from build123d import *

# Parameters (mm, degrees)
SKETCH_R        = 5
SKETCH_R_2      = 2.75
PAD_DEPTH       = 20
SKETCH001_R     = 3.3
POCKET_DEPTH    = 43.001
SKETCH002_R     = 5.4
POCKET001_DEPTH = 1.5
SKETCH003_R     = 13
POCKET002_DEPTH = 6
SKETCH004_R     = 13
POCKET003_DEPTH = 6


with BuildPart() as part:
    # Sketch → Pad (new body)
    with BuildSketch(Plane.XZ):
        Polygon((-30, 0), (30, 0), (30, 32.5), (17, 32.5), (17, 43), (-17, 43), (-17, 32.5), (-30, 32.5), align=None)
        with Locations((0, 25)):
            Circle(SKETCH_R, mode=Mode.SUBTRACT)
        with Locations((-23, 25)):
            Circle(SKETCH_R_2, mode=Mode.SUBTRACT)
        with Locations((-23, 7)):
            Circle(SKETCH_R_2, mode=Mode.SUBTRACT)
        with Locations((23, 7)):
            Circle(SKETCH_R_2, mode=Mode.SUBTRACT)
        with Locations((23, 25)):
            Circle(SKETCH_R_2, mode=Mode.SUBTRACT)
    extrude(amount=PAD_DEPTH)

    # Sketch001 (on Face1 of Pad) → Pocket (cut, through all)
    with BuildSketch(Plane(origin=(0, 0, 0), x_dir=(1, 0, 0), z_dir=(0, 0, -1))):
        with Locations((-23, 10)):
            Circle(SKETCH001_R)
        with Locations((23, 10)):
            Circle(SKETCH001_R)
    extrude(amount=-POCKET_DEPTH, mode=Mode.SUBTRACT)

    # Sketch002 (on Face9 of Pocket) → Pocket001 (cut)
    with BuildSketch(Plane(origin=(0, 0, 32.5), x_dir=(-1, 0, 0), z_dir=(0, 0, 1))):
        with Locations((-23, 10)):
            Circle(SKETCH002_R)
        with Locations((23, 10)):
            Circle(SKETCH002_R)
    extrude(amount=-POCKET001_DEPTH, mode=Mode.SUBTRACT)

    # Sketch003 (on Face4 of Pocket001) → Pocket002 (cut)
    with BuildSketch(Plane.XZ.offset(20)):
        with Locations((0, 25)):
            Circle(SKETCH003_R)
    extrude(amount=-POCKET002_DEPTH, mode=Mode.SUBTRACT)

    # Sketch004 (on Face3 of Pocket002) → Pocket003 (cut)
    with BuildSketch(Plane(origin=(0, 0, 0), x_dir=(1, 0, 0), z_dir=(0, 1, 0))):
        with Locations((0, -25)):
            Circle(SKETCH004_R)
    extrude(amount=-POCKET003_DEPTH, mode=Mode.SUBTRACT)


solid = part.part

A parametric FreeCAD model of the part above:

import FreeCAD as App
import Part
import Sketcher

doc = App.newDocument("Part")
params = doc.addObject("Spreadsheet::Sheet", "Params")
for row, (alias, value) in enumerate([
    ("sketch1_diameter", "10 mm"),
    ("sketch1_diameter2", "5.5 mm"),
    ("sketch1_width", "60 mm"),
    ("sketch1_width2", "13 mm"),
    ("sketch1_height", "32.5 mm"),
    ("pad1_length", "20 mm"),
    ("sketch2_diameter", "6.6 mm"),
    ("sketch3_diameter", "10.8 mm"),
    ("pocket2_length", "1.5 mm"),
    ("sketch4_diameter", "26 mm"),
    ("pocket3_length", "6 mm"),
    ("sketch5_diameter", "26 mm"),
    ("pocket4_length", "6 mm"),
], start=1):
    params.set(f"A{row}", alias)
    params.set(f"B{row}", "=" + value)
    params.setAlias(f"B{row}", alias)

body = doc.addObject("PartDesign::Body", "Body")

# Sketch on XZ plane
sketch1 = body.newObject("Sketcher::SketchObject", "Sketch")
sketch1.AttachmentSupport = (doc.getObject("XZ_Plane"), [""])
sketch1.MapMode = "FlatFace"
sketch1.addGeometry([
    Part.LineSegment(App.Vector(-30, 0, 0), App.Vector(30, 0, 0)),  # 0
    Part.LineSegment(App.Vector(30, 0, 0), App.Vector(30, 32.5, 0)),  # 1
    Part.LineSegment(App.Vector(30, 32.5, 0), App.Vector(17, 32.5, 0)),  # 2
    Part.LineSegment(App.Vector(17, 32.5, 0), App.Vector(17, 43, 0)),  # 3
    Part.LineSegment(App.Vector(17, 43, 0), App.Vector(-17, 43, 0)),  # 4
    Part.LineSegment(App.Vector(-17, 43, 0), App.Vector(-17, 32.5, 0)),  # 5
    Part.LineSegment(App.Vector(-17, 32.5, 0), App.Vector(-30, 32.5, 0)),  # 6
    Part.LineSegment(App.Vector(-30, 32.5, 0), App.Vector(-30, 0, 0)),  # 7
    Part.Circle(App.Vector(-23, 7, 0), App.Vector(0, 0, 1), 2.8),  # 8
    Part.Circle(App.Vector(23, 7, 0), App.Vector(0, 0, 1), 2.8),  # 9
    Part.Circle(App.Vector(-23, 25, 0), App.Vector(0, 0, 1), 2.8),  # 10
    Part.Circle(App.Vector(0, 25, 0), App.Vector(0, 0, 1), 5),  # 11
    Part.Circle(App.Vector(23, 25, 0), App.Vector(0, 0, 1), 2.8),  # 12
], False)
sketch1.addConstraint([
    Sketcher.Constraint("Coincident", 0, 2, 1, 1),
    Sketcher.Constraint("Coincident", 1, 2, 2, 1),
    Sketcher.Constraint("Coincident", 2, 2, 3, 1),
    Sketcher.Constraint("Coincident", 3, 2, 4, 1),
    Sketcher.Constraint("Coincident", 4, 2, 5, 1),
    Sketcher.Constraint("Coincident", 5, 2, 6, 1),
    Sketcher.Constraint("Coincident", 6, 2, 7, 1),
    Sketcher.Constraint("Coincident", 7, 2, 0, 1),
    Sketcher.Constraint("Horizontal", 0),
    Sketcher.Constraint("Vertical", 1),
    Sketcher.Constraint("Horizontal", 2),
    Sketcher.Constraint("Vertical", 3),
    Sketcher.Constraint("Horizontal", 4),
    Sketcher.Constraint("Vertical", 5),
    Sketcher.Constraint("Horizontal", 6),
    Sketcher.Constraint("Vertical", 7),
    Sketcher.Constraint("Equal", 8, 9),
    Sketcher.Constraint("Equal", 9, 10),
    Sketcher.Constraint("Equal", 10, 12),
    Sketcher.Constraint("Symmetric", 0, 2, 7, 2, -1, 1),
    Sketcher.Constraint("Symmetric", 8, 3, 9, 3, -2),
    Sketcher.Constraint("Symmetric", 10, 3, 12, 3, -2),
    Sketcher.Constraint("Symmetric", 2, 2, 5, 2, -2),
    Sketcher.Constraint("PointOnObject", 11, 3, -2),
    Sketcher.Constraint("Horizontal", 10, 3, 11, 3),
    Sketcher.Constraint("Vertical", 8, 3, 10, 3),
    Sketcher.Constraint("Diameter", 11, 10.0),
    Sketcher.Constraint("Diameter", 8, 5.5),
    Sketcher.Constraint("DistanceX", 0, 1, 0, 2, 60.0),
    Sketcher.Constraint("DistanceX", 2, 2, 2, 1, 13.0),
    Sketcher.Constraint("DistanceY", 1, 1, 1, 2, 32.5),
    Sketcher.Constraint("DistanceY", 3, 1, 3, 2, 10.5),
    Sketcher.Constraint("DistanceX", 8, 3, -1, 1, 23.0),
    Sketcher.Constraint("DistanceY", -1, 1, 8, 3, 7.0),
    Sketcher.Constraint("DistanceY", -1, 1, 10, 3, 25.0),
])
sketch1.setExpression("Constraints[26]", "Params.sketch1_diameter")
sketch1.setExpression("Constraints[27]", "Params.sketch1_diameter2")
sketch1.setExpression("Constraints[28]", "Params.sketch1_width")
sketch1.setExpression("Constraints[29]", "Params.sketch1_width2")
sketch1.setExpression("Constraints[30]", "Params.sketch1_height")
pad1 = body.newObject("PartDesign::Pad", "Pad")
pad1.Profile = sketch1
pad1.setExpression("Length", "Params.pad1_length")

# Sketch on XY plane
sketch2 = body.newObject("Sketcher::SketchObject", "Sketch001")
sketch2.AttachmentSupport = (doc.getObject("XY_Plane"), [""])
sketch2.MapMode = "FlatFace"
sketch2.addGeometry([
    Part.Circle(App.Vector(-23, -10, 0), App.Vector(0, 0, 1), 3.3),
    Part.Circle(App.Vector(23, -10, 0), App.Vector(0, 0, 1), 3.3),
], False)
sketch2.addConstraint([
    Sketcher.Constraint("Equal", 0, 1),
    Sketcher.Constraint("Symmetric", 0, 3, 1, 3, -2),
    Sketcher.Constraint("Diameter", 0, 6.6),
    Sketcher.Constraint("DistanceX", 0, 3, -1, 1, 23.0),
    Sketcher.Constraint("DistanceY", 0, 3, -1, 1, 10.0),
])
sketch2.setExpression("Constraints[2]", "Params.sketch2_diameter")
pocket1 = body.newObject("PartDesign::Pocket", "Pocket")
pocket1.Profile = sketch2
pocket1.Type = "ThroughAll"
pocket1.Reversed = True

# Sketch on XY plane
sketch3 = body.newObject("Sketcher::SketchObject", "Sketch002")
sketch3.AttachmentSupport = (doc.getObject("XY_Plane"), [""])
sketch3.MapMode = "FlatFace"
sketch3.AttachmentOffset = App.Placement(App.Vector(0, 0, 32.5), App.Rotation())
sketch3.addGeometry([
    Part.Circle(App.Vector(23, -10, 0), App.Vector(0, 0, 1), 5),
    Part.Circle(App.Vector(-23, -10, 0), App.Vector(0, 0, 1), 5),
], False)
sketch3.addConstraint([
    Sketcher.Constraint("Equal", 0, 1),
    Sketcher.Constraint("Symmetric", 0, 3, 1, 3, -2),
    Sketcher.Constraint("Diameter", 0, 10.8),
    Sketcher.Constraint("DistanceX", -1, 1, 0, 3, 23.0),
    Sketcher.Constraint("DistanceY", 0, 3, -1, 1, 10.0),
])
sketch3.setExpression("Constraints[2]", "Params.sketch3_diameter")
pocket2 = body.newObject("PartDesign::Pocket", "Pocket001")
pocket2.Profile = sketch3
pocket2.setExpression("Length", "Params.pocket2_length")

# Sketch on XZ plane
sketch4 = body.newObject("Sketcher::SketchObject", "Sketch003")
sketch4.AttachmentSupport = (doc.getObject("XZ_Plane"), [""])
sketch4.MapMode = "FlatFace"
sketch4.AttachmentOffset = App.Placement(App.Vector(0, 0, 20), App.Rotation())
sketch4.addGeometry(Part.Circle(App.Vector(0, 25, 0), App.Vector(0, 0, 1), 13), False)
sketch4.addConstraint([
    Sketcher.Constraint("PointOnObject", 0, 3, -2),
    Sketcher.Constraint("Diameter", 0, 26.0),
    Sketcher.Constraint("DistanceY", -1, 1, 0, 3, 25.0),
])
sketch4.setExpression("Constraints[1]", "Params.sketch4_diameter")
pocket3 = body.newObject("PartDesign::Pocket", "Pocket002")
pocket3.Profile = sketch4
pocket3.setExpression("Length", "Params.pocket3_length")

# Sketch on XZ plane
sketch5 = body.newObject("Sketcher::SketchObject", "Sketch004")
sketch5.AttachmentSupport = (doc.getObject("XZ_Plane"), [""])
sketch5.MapMode = "FlatFace"
sketch5.addGeometry(Part.Circle(App.Vector(0, 25, 0), App.Vector(0, 0, 1), 13), False)
sketch5.addConstraint([
    Sketcher.Constraint("PointOnObject", 0, 3, -2),
    Sketcher.Constraint("Diameter", 0, 26.0),
    Sketcher.Constraint("DistanceY", -1, 1, 0, 3, 25.0),
])
sketch5.setExpression("Constraints[1]", "Params.sketch5_diameter")
pocket4 = body.newObject("PartDesign::Pocket", "Pocket003")
pocket4.Profile = sketch5
pocket4.setExpression("Length", "Params.pocket4_length")
pocket4.Reversed = True

doc.recompute()
